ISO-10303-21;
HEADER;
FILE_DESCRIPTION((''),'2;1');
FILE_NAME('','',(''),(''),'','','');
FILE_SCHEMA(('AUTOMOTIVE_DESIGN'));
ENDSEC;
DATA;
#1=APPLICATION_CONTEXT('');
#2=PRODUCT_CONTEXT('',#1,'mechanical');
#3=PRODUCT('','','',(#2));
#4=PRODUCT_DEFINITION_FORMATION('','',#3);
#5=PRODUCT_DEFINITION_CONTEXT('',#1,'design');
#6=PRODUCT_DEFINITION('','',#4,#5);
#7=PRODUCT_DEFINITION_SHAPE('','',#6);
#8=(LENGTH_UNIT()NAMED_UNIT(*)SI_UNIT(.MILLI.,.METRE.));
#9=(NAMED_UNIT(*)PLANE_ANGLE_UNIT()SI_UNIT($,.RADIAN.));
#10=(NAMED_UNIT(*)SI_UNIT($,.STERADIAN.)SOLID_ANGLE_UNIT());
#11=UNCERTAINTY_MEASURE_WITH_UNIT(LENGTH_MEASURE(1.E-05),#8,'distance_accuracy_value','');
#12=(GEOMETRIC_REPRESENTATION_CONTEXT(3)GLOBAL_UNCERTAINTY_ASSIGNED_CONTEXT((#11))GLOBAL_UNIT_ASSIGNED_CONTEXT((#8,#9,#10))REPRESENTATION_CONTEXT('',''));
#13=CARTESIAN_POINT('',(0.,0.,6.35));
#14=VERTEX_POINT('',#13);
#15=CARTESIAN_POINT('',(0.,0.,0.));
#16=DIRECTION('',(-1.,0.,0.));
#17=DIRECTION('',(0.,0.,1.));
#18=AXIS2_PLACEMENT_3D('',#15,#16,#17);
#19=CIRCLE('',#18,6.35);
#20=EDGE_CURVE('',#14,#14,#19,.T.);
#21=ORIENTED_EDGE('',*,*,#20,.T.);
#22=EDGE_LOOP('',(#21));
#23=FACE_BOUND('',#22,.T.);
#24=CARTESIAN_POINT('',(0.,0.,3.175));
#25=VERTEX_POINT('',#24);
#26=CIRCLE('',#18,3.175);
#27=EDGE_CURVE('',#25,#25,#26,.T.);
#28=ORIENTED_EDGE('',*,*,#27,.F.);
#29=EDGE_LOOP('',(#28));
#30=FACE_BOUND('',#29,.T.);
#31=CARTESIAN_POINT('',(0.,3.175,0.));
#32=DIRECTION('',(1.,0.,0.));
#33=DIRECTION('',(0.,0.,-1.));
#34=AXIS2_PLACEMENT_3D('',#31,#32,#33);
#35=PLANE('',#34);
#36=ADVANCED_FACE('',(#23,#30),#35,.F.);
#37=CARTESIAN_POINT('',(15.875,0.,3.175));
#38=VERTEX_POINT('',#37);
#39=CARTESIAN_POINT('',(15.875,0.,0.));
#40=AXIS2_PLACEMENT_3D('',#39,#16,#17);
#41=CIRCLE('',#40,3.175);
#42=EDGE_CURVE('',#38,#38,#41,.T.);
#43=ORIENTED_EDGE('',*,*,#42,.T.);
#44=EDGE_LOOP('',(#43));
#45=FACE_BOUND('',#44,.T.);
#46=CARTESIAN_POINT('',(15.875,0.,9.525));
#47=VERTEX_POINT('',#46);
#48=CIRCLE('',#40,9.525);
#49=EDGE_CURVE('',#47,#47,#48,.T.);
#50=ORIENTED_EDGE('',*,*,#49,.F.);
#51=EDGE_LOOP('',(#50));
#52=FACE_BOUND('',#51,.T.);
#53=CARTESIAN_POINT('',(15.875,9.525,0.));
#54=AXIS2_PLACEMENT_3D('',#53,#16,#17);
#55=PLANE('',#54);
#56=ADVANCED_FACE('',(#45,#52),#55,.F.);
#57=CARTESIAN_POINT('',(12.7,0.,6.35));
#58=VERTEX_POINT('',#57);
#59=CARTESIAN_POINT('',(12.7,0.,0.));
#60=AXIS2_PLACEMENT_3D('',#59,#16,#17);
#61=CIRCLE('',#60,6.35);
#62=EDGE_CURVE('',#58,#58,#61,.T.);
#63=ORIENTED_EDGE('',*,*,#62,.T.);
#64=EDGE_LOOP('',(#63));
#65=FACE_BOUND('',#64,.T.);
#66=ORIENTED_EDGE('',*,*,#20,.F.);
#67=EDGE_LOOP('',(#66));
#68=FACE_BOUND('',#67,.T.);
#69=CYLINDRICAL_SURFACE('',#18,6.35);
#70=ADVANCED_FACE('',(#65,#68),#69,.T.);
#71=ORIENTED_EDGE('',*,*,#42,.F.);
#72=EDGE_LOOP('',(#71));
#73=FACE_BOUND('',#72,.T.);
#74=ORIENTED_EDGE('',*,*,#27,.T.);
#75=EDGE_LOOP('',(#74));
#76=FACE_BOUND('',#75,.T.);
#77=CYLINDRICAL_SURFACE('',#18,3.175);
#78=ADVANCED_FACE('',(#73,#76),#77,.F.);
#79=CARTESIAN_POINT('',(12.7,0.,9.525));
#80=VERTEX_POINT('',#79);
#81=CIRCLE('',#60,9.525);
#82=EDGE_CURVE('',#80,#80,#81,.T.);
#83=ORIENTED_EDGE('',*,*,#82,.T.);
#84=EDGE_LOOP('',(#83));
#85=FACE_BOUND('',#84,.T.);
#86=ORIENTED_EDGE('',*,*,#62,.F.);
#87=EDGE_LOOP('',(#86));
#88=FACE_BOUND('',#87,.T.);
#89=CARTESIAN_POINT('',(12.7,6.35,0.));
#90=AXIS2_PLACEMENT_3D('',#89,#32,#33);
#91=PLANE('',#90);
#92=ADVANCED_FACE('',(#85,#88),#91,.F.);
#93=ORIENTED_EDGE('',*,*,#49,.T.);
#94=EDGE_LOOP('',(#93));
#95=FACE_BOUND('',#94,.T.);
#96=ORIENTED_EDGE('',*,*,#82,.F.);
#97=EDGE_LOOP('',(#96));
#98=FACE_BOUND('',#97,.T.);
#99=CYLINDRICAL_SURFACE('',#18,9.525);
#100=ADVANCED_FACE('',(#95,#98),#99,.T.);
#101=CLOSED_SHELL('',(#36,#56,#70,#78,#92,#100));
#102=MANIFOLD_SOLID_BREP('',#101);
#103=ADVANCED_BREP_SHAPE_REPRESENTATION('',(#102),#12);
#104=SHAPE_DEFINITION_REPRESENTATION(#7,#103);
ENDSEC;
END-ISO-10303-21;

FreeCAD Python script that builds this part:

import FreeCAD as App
import Part
import Sketcher
from FreeCAD import Vector
Q = App.Units.Quantity


def add_polygon(sketch, points):
    """Adds a closed chain of lines whose ends are joined by coincident constraints."""
    first, n = sketch.GeometryCount, len(points)
    for a, b in zip(points, points[1:] + points[:1]):
        sketch.addGeometry(Part.LineSegment(App.Vector(*a, 0), App.Vector(*b, 0)), False)
    for i in range(n):
        sketch.addConstraint(Sketcher.Constraint("Coincident", first + i, 2, first + (i + 1) % n, 1))

doc = App.newDocument("Part")
params = doc.addObject("Spreadsheet::Sheet", "Params")
for row, (alias, value) in enumerate([
    ("sketch1_width", "0.5 in"),
    ("sketch1_height", "0.25 in"),
    ("revolution_angle", "360 deg"),
], start=1):
    params.set(f"A{row}", alias)
    params.set(f"B{row}", "=" + value)
    params.setAlias(f"B{row}", alias)

body = doc.addObject("PartDesign::Body", "Body")

# Sketch on XY plane
sketch1 = body.newObject("Sketcher::SketchObject", "Sketch")
sketch1.AttachmentSupport = (doc.getObject("XY_Plane"), [""])
sketch1.MapMode = "FlatFace"
add_polygon(sketch1, [(0, 6.35), (0, 3.175), (15.875, 3.175), (15.875, 9.525), (12.7, 9.525), (12.7, 6.35)])  # lines 0-5
sketch1.addConstraint(Sketcher.Constraint("Vertical", 0))
sketch1.addConstraint(Sketcher.Constraint("Horizontal", 1))
sketch1.addConstraint(Sketcher.Constraint("Vertical", 2))
sketch1.addConstraint(Sketcher.Constraint("Horizontal", 3))
sketch1.addConstraint(Sketcher.Constraint("Vertical", 4))
sketch1.addConstraint(Sketcher.Constraint("Horizontal", 5))
sketch1.addConstraint(Sketcher.Constraint("PointOnObject", 0, 2, -2))
sketch1.addConstraint(Sketcher.Constraint("Equal", 3, 0))
sketch1.addConstraint(Sketcher.Constraint("Equal", 0, 4))
sketch1.addConstraint(Sketcher.Constraint("DistanceX", 5, 2, 5, 1, Q("0.5 in")))
sketch1.addConstraint(Sketcher.Constraint("DistanceY", 2, 1, 2, 2, Q("0.25 in")))
sketch1.addConstraint(Sketcher.Constraint("DistanceY", -1, 1, 4, 2, Q("0.25 in")))
sketch1.setExpression("Constraints[15]", "Params.sketch1_width")
sketch1.setExpression("Constraints[16]", "Params.sketch1_height")
revolution = body.newObject("PartDesign::Revolution", "Revolution")
revolution.Profile = sketch1
revolution.ReferenceAxis = (sketch1, ["H_Axis"])
revolution.setExpression("Angle", "Params.revolution_angle")

doc.recompute()
